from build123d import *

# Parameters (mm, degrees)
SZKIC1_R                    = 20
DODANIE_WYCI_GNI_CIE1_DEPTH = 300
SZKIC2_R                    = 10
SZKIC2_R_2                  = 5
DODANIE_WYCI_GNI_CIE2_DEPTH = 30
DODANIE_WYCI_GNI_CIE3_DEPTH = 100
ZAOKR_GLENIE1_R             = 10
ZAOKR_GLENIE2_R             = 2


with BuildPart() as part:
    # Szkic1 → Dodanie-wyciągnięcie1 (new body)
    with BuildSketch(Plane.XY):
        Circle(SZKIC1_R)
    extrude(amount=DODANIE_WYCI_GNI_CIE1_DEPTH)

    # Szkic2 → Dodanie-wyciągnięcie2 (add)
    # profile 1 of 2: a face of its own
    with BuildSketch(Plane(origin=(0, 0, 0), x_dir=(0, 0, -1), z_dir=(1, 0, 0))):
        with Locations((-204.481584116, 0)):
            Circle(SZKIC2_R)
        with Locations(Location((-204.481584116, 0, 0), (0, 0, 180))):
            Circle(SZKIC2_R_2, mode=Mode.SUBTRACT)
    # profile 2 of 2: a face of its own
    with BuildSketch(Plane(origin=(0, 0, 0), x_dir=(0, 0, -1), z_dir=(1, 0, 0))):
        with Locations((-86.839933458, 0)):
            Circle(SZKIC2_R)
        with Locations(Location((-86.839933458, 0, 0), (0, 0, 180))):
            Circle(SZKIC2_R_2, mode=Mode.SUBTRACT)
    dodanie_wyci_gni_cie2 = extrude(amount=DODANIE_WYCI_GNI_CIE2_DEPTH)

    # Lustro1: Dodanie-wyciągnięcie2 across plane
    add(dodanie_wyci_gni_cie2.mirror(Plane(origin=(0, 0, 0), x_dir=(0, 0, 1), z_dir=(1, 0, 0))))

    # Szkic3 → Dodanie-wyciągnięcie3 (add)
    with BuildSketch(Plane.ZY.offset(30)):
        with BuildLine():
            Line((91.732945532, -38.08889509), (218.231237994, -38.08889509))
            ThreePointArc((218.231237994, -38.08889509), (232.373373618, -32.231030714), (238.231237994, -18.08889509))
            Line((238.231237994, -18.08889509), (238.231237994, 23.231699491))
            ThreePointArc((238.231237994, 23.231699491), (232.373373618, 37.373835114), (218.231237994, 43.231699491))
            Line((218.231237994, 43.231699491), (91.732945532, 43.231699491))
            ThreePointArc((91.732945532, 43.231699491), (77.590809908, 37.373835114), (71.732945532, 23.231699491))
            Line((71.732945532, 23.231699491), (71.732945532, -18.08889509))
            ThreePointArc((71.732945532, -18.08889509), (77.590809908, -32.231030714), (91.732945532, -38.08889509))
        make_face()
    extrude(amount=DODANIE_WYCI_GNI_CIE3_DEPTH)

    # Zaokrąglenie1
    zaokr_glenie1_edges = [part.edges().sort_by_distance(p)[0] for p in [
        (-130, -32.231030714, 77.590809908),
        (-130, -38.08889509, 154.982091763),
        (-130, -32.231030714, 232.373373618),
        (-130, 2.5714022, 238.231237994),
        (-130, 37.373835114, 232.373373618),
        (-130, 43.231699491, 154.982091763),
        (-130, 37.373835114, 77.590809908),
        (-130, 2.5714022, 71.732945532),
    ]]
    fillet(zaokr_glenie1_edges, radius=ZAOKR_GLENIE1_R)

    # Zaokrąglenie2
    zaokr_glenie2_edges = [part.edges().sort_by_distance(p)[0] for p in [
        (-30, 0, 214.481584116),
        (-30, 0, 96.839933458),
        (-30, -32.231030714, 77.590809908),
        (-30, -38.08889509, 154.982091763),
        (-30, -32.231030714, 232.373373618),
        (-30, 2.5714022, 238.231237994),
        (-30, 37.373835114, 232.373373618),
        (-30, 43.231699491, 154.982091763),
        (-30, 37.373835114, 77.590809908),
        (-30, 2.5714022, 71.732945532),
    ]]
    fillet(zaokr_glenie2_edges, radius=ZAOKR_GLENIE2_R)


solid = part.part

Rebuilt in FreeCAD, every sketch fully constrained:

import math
import FreeCAD as App
import Part
import Sketcher

V = App.Vector


def edges_at(feature, points):
    """Names of the edges that pass closest to the given points."""
    edges = feature.Shape.Edges
    near = lambda p: min(range(len(edges)), key=lambda i: edges[i].distToShape(Part.Vertex(*p))[0])
    return sorted({f"Edge{near(p) + 1}" for p in points})

doc = App.newDocument("Part")
params = doc.addObject("Spreadsheet::Sheet", "Params")
for row, (alias, value) in enumerate([
    ("sketch1_diameter", "40 mm"),
    ("pad1_length", "300 mm"),
    ("sketch2_diameter", "20 mm"),
    ("sketch2_diameter2", "10 mm"),
    ("pad2_length", "30 mm"),
    ("sketch3_radius", "20 mm"),
    ("pad3_length", "100 mm"),
    ("fillet_radius", "10 mm"),
    ("fillet2_radius", "2 mm"),
], start=1):
    params.set(f"A{row}", alias)
    params.set(f"B{row}", "=" + value)
    params.setAlias(f"B{row}", alias)

body = doc.addObject("PartDesign::Body", "Body")

# Sketch on XY plane
sketch1 = doc.addObject("Sketcher::SketchObject", "Sketch")
body.addObject(sketch1)
sketch1.AttachmentSupport = (doc.XY_Plane, [""])
sketch1.MapMode = "FlatFace"
sketch1.addGeometry(Part.Circle(V(0, 0, 0), V(0, 0, 1), 20), False)
sketch1.addConstraint([
    Sketcher.Constraint("Coincident", 0, 3, -1, 1),
    Sketcher.Constraint("Diameter", 0, 40.0),
])
sketch1.setExpression("Constraints[1]", "Params.sketch1_diameter")
pad1 = doc.addObject("PartDesign::Pad", "Pad")
body.addObject(pad1)
pad1.Profile = sketch1
pad1.setExpression("Length", "Params.pad1_length")

# Sketch on YZ plane
sketch2 = doc.addObject("Sketcher::SketchObject", "Sketch001")
body.addObject(sketch2)
sketch2.AttachmentSupport = (doc.YZ_Plane, [""])
sketch2.MapMode = "FlatFace"
sketch2.addGeometry([
    Part.Circle(V(0, 204.481584, 0), V(0, 0, 1), 10),
    Part.Circle(V(0, 204.481584, 0), V(0, 0, 1), 5),
    Part.Circle(V(0, 86.839933, 0), V(0, 0, 1), 10),
    Part.Circle(V(0, 86.839933, 0), V(0, 0, 1), 5),
], False)
sketch2.addConstraint([
    Sketcher.Constraint("Coincident", 1, 3, 0, 3),
    Sketcher.Constraint("Coincident", 3, 3, 2, 3),
    Sketcher.Constraint("Equal", 0, 2),
    Sketcher.Constraint("Equal", 1, 3),
    Sketcher.Constraint("PointOnObject", 0, 3, -2),
    Sketcher.Constraint("PointOnObject", 2, 3, -2),
    Sketcher.Constraint("Diameter", 0, 20.0),
    Sketcher.Constraint("Diameter", 1, 10.0),
    Sketcher.Constraint("DistanceY", 2, 3, 0, 3, 117.641651),
    Sketcher.Constraint("DistanceY", -1, 1, 0, 3, 204.481584),
])
sketch2.setExpression("Constraints[6]", "Params.sketch2_diameter")
sketch2.setExpression("Constraints[7]", "Params.sketch2_diameter2")
pad2 = doc.addObject("PartDesign::Pad", "Pad001")
body.addObject(pad2)
pad2.Profile = sketch2
pad2.setExpression("Length", "Params.pad2_length")
doc.recompute()

mirrored = doc.addObject("PartDesign::Mirrored", "Mirrored")
body.addObject(mirrored)
mirrored.Originals = [pad2]
mirrored.MirrorPlane = (doc.YZ_Plane, [""])
body.Tip = mirrored

# Sketch on YZ plane
sketch3 = doc.addObject("Sketcher::SketchObject", "Sketch002")
body.addObject(sketch3)
sketch3.AttachmentSupport = (doc.YZ_Plane, [""])
sketch3.MapMode = "FlatFace"
sketch3.AttachmentOffset = App.Placement(V(0, 0, -30), App.Rotation())
sketch3.addGeometry([
    Part.LineSegment(V(-38.088895, 91.732946, 0), V(-38.088895, 218.231238, 0)),  # 0
    Part.ArcOfCircle(Part.Circle(V(-18.088895, 218.231238, 0), V(0, 0, 1), 20), math.radians(90), math.radians(180)),  # 1
    Part.LineSegment(V(-18.088895, 238.231238, 0), V(23.231699, 238.231238, 0)),  # 2
    Part.ArcOfCircle(Part.Circle(V(23.231699, 218.231238, 0), V(0, 0, 1), 20), math.radians(0), math.radians(90)),  # 3
    Part.LineSegment(V(43.231699, 218.231238, 0), V(43.231699, 91.732946, 0)),  # 4
    Part.ArcOfCircle(Part.Circle(V(23.231699, 91.732946, 0), V(0, 0, 1), 20), math.radians(-90), math.radians(0)),  # 5
    Part.LineSegment(V(23.231699, 71.732946, 0), V(-18.088895, 71.732946, 0)),  # 6
    Part.ArcOfCircle(Part.Circle(V(-18.088895, 91.732946, 0), V(0, 0, 1), 20), math.radians(180), math.radians(270)),  # 7
], False)
sketch3.addConstraint([
    Sketcher.Constraint("Tangent", 0, 2, 1, 2),
    Sketcher.Constraint("Tangent", 1, 1, 2, 1),
    Sketcher.Constraint("Tangent", 2, 2, 3, 2),
    Sketcher.Constraint("Tangent", 3, 1, 4, 1),
    Sketcher.Constraint("Tangent", 4, 2, 5, 2),
    Sketcher.Constraint("Tangent", 5, 1, 6, 1),
    Sketcher.Constraint("Tangent", 6, 2, 7, 2),
    Sketcher.Constraint("Tangent", 7, 1, 0, 1),
    Sketcher.Constraint("Vertical", 0),
    Sketcher.Constraint("Horizontal", 2),
    Sketcher.Constraint("Vertical", 4),
    Sketcher.Constraint("Horizontal", 6),
    Sketcher.Constraint("Equal", 1, 3),
    Sketcher.Constraint("Equal", 3, 5),
    Sketcher.Constraint("Equal", 5, 7),
    Sketcher.Constraint("Radius", 1, 20.0),
    Sketcher.Constraint("DistanceX", -1, 1, 3, 3, 23.231699),
    Sketcher.Constraint("DistanceX", 2, 1, 2, 2, 41.320595),
    Sketcher.Constraint("DistanceY", 0, 1, 0, 2, 126.498292),
    Sketcher.Constraint("DistanceY", -1, 1, 1, 3, 218.231238),
])
sketch3.setExpression("Constraints[15]", "Params.sketch3_radius")
pad3 = doc.addObject("PartDesign::Pad", "Pad002")
body.addObject(pad3)
pad3.Profile = sketch3
pad3.setExpression("Length", "Params.pad3_length")
pad3.Reversed = True
doc.recompute()

fillet = doc.addObject("PartDesign::Fillet", "Fillet")
body.addObject(fillet)
fillet.Base = (pad3, edges_at(pad3, [
    (-130, -32.231, 77.591),
    (-130, -38.089, 154.982),
    (-130, -32.231, 232.373),
    (-130, 2.571, 238.231),
    (-130, 37.374, 232.373),
    (-130, 43.232, 154.982),
    (-130, 37.374, 77.591),
    (-130, 2.571, 71.733),
]))
fillet.setExpression("Radius", "Params.fillet_radius")
doc.recompute()

fillet2 = doc.addObject("PartDesign::Fillet", "Fillet001")
body.addObject(fillet2)
fillet2.Base = (fillet, edges_at(fillet, [
    (-30, 0, 214.482),
    (-30, 0, 96.84),
    (-30, -32.231, 77.591),
    (-30, -38.089, 154.982),
    (-30, -32.231, 232.373),
    (-30, 2.571, 238.231),
    (-30, 37.374, 232.373),
    (-30, 43.232, 154.982),
    (-30, 37.374, 77.591),
    (-30, 2.571, 71.733),
]))
fillet2.setExpression("Radius", "Params.fillet2_radius")

doc.recompute()
